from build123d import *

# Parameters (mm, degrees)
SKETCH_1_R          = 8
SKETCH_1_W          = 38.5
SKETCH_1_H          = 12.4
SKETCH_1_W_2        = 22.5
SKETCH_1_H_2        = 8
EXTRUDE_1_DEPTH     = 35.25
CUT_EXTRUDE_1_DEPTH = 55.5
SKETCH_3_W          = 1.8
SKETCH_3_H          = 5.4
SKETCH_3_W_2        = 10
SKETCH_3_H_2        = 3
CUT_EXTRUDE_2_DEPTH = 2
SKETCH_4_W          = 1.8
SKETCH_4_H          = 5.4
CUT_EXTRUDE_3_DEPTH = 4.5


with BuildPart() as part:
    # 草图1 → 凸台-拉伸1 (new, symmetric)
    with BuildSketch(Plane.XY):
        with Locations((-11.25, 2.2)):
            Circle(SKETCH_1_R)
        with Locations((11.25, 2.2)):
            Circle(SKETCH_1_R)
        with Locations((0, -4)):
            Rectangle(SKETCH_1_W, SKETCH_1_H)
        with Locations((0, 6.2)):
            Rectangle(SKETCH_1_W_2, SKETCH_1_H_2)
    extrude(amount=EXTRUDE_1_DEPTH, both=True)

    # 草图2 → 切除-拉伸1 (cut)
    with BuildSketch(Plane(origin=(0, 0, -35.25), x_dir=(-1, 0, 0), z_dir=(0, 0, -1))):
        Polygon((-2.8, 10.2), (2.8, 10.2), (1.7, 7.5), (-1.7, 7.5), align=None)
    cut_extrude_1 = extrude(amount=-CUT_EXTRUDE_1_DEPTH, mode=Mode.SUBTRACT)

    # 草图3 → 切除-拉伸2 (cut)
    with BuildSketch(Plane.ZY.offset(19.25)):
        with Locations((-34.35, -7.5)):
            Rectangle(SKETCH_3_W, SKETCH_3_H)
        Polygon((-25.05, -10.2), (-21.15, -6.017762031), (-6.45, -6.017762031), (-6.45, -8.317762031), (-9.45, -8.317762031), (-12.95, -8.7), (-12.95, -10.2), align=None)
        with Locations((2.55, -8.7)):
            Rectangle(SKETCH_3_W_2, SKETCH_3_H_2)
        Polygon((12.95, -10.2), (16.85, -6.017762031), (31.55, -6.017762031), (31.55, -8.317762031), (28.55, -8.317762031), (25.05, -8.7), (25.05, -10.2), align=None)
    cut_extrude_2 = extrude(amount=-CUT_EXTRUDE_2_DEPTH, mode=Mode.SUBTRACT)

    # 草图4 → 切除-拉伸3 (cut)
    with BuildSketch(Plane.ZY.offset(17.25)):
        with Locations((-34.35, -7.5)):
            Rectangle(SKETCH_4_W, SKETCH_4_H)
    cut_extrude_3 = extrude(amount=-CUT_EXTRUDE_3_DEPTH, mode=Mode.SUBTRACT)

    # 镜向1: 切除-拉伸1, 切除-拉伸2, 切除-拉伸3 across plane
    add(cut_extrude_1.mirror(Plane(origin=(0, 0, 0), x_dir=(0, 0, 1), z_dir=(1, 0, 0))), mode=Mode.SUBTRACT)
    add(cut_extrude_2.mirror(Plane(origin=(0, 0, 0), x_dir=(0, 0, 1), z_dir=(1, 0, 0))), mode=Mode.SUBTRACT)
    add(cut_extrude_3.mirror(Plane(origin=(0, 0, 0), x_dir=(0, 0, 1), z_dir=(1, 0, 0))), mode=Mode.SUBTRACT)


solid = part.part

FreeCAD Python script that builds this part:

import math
import FreeCAD as App
import Part
import Sketcher

V = App.Vector
Q = App.Units.Quantity

doc = App.newDocument("Part")
body = doc.addObject("PartDesign::Body", "Body")

sketch1 = doc.addObject("Sketcher::SketchObject", "Sketch")
body.addObject(sketch1)
sketch1.AttachmentSupport = (doc.XY_Plane, [""])
sketch1.MapMode = "FlatFace"
sketch1.addGeometry([
    Part.ArcOfCircle(Part.Circle(V(11.25, 2.2, 0), V(0, 0, 1), 8), math.radians(0), math.radians(90)),
    Part.LineSegment(V(11.25, 10.2, 0), V(-11.25, 10.2, 0)),
    Part.ArcOfCircle(Part.Circle(V(-11.25, 2.2, 0), V(0, 0, 1), 8), math.radians(90), math.radians(180)),
    Part.LineSegment(V(-19.25, 2.2, 0), V(-19.25, -10.2, 0)),
    Part.LineSegment(V(-19.25, -10.2, 0), V(19.25, -10.2, 0)),
    Part.LineSegment(V(19.25, -10.2, 0), V(19.25, 2.2, 0)),
], False)
sketch1.addConstraint([
    Sketcher.Constraint("Tangent", 0, 2, 1, 1),
    Sketcher.Constraint("Tangent", 1, 2, 2, 1),
    Sketcher.Constraint("Tangent", 2, 2, 3, 1),
    Sketcher.Constraint("Coincident", 3, 2, 4, 1),
    Sketcher.Constraint("Coincident", 4, 2, 5, 1),
    Sketcher.Constraint("Tangent", 5, 2, 0, 1),
    Sketcher.Constraint("Horizontal", 1),
    Sketcher.Constraint("Vertical", 3),
    Sketcher.Constraint("Horizontal", 4),
    Sketcher.Constraint("Vertical", 5),
    Sketcher.Constraint("Equal", 0, 2),
    Sketcher.Constraint("Radius", 0, 8.0),
    Sketcher.Constraint("DistanceX", 1, 2, 1, 1, 22.5),
    Sketcher.Constraint("DistanceY", 3, 2, 3, 1, 12.4),
    Sketcher.Constraint("DistanceY", -1, 1, 0, 3, 2.2),
    Sketcher.Constraint("DistanceX", -1, 1, 0, 3, 11.25),
])
pad1 = doc.addObject("PartDesign::Pad", "Pad")
body.addObject(pad1)
pad1.Profile = sketch1
pad1.Length = 70.5
pad1.Midplane = True

sketch2 = doc.addObject("Sketcher::SketchObject", "Sketch001")
body.addObject(sketch2)
sketch2.AttachmentSupport = (doc.XY_Plane, [""])
sketch2.MapMode = "FlatFace"
sketch2.AttachmentOffset = App.Placement(V(0, 0, -35.25), App.Rotation())
sketch2.addGeometry([
    Part.LineSegment(V(-2.8, 10.2, 0), V(2.8, 10.2, 0)),
    Part.LineSegment(V(2.8, 10.2, 0), V(1.7, 7.5, 0)),
    Part.LineSegment(V(1.7, 7.5, 0), V(-1.7, 7.5, 0)),
    Part.LineSegment(V(-1.7, 7.5, 0), V(-2.8, 10.2, 0)),
], False)
sketch2.addConstraint([
    Sketcher.Constraint("Coincident", 0, 2, 1, 1),
    Sketcher.Constraint("Coincident", 1, 2, 2, 1),
    Sketcher.Constraint("Coincident", 2, 2, 3, 1),
    Sketcher.Constraint("Coincident", 3, 2, 0, 1),
    Sketcher.Constraint("Horizontal", 0),
    Sketcher.Constraint("Horizontal", 2),
    Sketcher.Constraint("Equal", 1, 3),
    Sketcher.Constraint("DistanceX", 0, 1, 0, 2, 5.6),
    Sketcher.Constraint("DistanceX", 2, 2, 2, 1, 3.4),
    Sketcher.Constraint("DistanceX", -1, 1, 0, 2, 2.8),
    Sketcher.Constraint("DistanceY", -1, 1, 0, 2, 10.2),
    Sketcher.Constraint("DistanceY", -1, 1, 1, 2, 7.5),
])
pocket1 = doc.addObject("PartDesign::Pocket", "Pocket")
body.addObject(pocket1)
pocket1.Profile = sketch2
pocket1.Length = 55.5
pocket1.Reversed = True

sketch3 = doc.addObject("Sketcher::SketchObject", "Sketch002")
body.addObject(sketch3)
sketch3.AttachmentSupport = (doc.YZ_Plane, [""])
sketch3.MapMode = "FlatFace"
sketch3.AttachmentOffset = App.Placement(V(0, 0, -19.25), App.Rotation())
sketch3.addGeometry([
    Part.LineSegment(V(-4.8, -35.25, 0), V(-10.2, -35.25, 0)),
    Part.LineSegment(V(-10.2, -35.25, 0), V(-10.2, -33.45, 0)),
    Part.LineSegment(V(-10.2, -33.45, 0), V(-4.8, -33.45, 0)),
    Part.LineSegment(V(-4.8, -33.45, 0), V(-4.8, -35.25, 0)),
    Part.LineSegment(V(-6.017762, -21.15, 0), V(-10.2, -25.05, 0)),
    Part.LineSegment(V(-10.2, -25.05, 0), V(-10.2, -12.95, 0)),
    Part.LineSegment(V(-10.2, -12.95, 0), V(-8.7, -12.95, 0)),
    Part.LineSegment(V(-8.7, -12.95, 0), V(-8.317762, -9.45, 0)),
    Part.LineSegment(V(-8.317762, -9.45, 0), V(-8.317762, -6.45, 0)),
    Part.LineSegment(V(-8.317762, -6.45, 0), V(-6.017762, -6.45, 0)),
    Part.LineSegment(V(-6.017762, -6.45, 0), V(-6.017762, -21.15, 0)),
    Part.LineSegment(V(-7.2, -2.45, 0), V(-10.2, -2.45, 0)),
    Part.LineSegment(V(-10.2, -2.45, 0), V(-10.2, 7.55, 0)),
    Part.LineSegment(V(-10.2, 7.55, 0), V(-7.2, 7.55, 0)),
    Part.LineSegment(V(-7.2, 7.55, 0), V(-7.2, -2.45, 0)),
    Part.LineSegment(V(-6.017762, 16.85, 0), V(-10.2, 12.95, 0)),
    Part.LineSegment(V(-10.2, 12.95, 0), V(-10.2, 25.05, 0)),
    Part.LineSegment(V(-10.2, 25.05, 0), V(-8.7, 25.05, 0)),
    Part.LineSegment(V(-8.7, 25.05, 0), V(-8.317762, 28.55, 0)),
    Part.LineSegment(V(-8.317762, 28.55, 0), V(-8.317762, 31.55, 0)),
    Part.LineSegment(V(-8.317762, 31.55, 0), V(-6.017762, 31.55, 0)),
    Part.LineSegment(V(-6.017762, 31.55, 0), V(-6.017762, 16.85, 0)),
], False)
sketch3.addConstraint([
    Sketcher.Constraint("Coincident", 0, 2, 1, 1),
    Sketcher.Constraint("Coincident", 1, 2, 2, 1),
    Sketcher.Constraint("Coincident", 2, 2, 3, 1),
    Sketcher.Constraint("Coincident", 3, 2, 0, 1),
    Sketcher.Constraint("Coincident", 4, 2, 5, 1),
    Sketcher.Constraint("Coincident", 5, 2, 6, 1),
    Sketcher.Constraint("Coincident", 6, 2, 7, 1),
    Sketcher.Constraint("Coincident", 7, 2, 8, 1),
    Sketcher.Constraint("Coincident", 8, 2, 9, 1),
    Sketcher.Constraint("Coincident", 9, 2, 10, 1),
    Sketcher.Constraint("Coincident", 10, 2, 4, 1),
    Sketcher.Constraint("Coincident", 11, 2, 12, 1),
    Sketcher.Constraint("Coincident", 12, 2, 13, 1),
    Sketcher.Constraint("Coincident", 13, 2, 14, 1),
    Sketcher.Constraint("Coincident", 14, 2, 11, 1),
    Sketcher.Constraint("Coincident", 15, 2, 16, 1),
    Sketcher.Constraint("Coincident", 16, 2, 17, 1),
    Sketcher.Constraint("Coincident", 17, 2, 18, 1),
    Sketcher.Constraint("Coincident", 18, 2, 19, 1),
    Sketcher.Constraint("Coincident", 19, 2, 20, 1),
    Sketcher.Constraint("Coincident", 20, 2, 21, 1),
    Sketcher.Constraint("Coincident", 21, 2, 15, 1),
    Sketcher.Constraint("Horizontal", 0),
    Sketcher.Constraint("Vertical", 1),
    Sketcher.Constraint("Horizontal", 2),
    Sketcher.Constraint("Vertical", 3),
    Sketcher.Constraint("Vertical", 5),
    Sketcher.Constraint("Horizontal", 6),
    Sketcher.Constraint("Vertical", 8),
    Sketcher.Constraint("Horizontal", 9),
    Sketcher.Constraint("Vertical", 10),
    Sketcher.Constraint("Horizontal", 11),
    Sketcher.Constraint("Vertical", 12),
    Sketcher.Constraint("Horizontal", 13),
    Sketcher.Constraint("Vertical", 14),
    Sketcher.Constraint("Vertical", 16),
    Sketcher.Constraint("Horizontal", 17),
    Sketcher.Constraint("Vertical", 19),
    Sketcher.Constraint("Horizontal", 20),
    Sketcher.Constraint("Vertical", 21),
    Sketcher.Constraint("Symmetric", 5, 2, 15, 2, -1),
    Sketcher.Constraint("Parallel", 4, 15),
    Sketcher.Constraint("Parallel", 7, 18),
    Sketcher.Constraint("Vertical", 1, 2, 4, 2),
    Sketcher.Constraint("Vertical", 5, 2, 11, 2),
    Sketcher.Constraint("Vertical", 6, 2, 17, 2),
    Sketcher.Constraint("Vertical", 8, 2, 18, 2),
    Sketcher.Constraint("Vertical", 10, 2, 20, 2),
    Sketcher.Constraint("Equal", 13, 8),
    Sketcher.Constraint("Equal", 5, 16),
    Sketcher.Constraint("Equal", 8, 19),
    Sketcher.Constraint("DistanceX", 11, 2, 11, 1, 3.0),
    Sketcher.Constraint("DistanceY", 12, 1, 12, 2, 10.0),
    Sketcher.Constraint("Angle", 4, Q("-137 deg")),
    Sketcher.Constraint("DistanceX", 0, 2, 0, 1, 5.4),
    Sketcher.Constraint("DistanceX", 6, 1, 6, 2, 1.5),
    Sketcher.Constraint("DistanceX", 9, 1, 9, 2, 2.3),
    Sketcher.Constraint("DistanceY", 1, 1, 1, 2, 1.8),
    Sketcher.Constraint("DistanceY", 5, 1, 5, 2, 12.1),
    Sketcher.Constraint("DistanceY", 10, 2, 10, 1, 14.7),
    Sketcher.Constraint("DistanceY", 1, 2, 7, 2, 24.0),
    Sketcher.Constraint("DistanceY", 8, 2, 11, 2, 4.0),
    Sketcher.Constraint("DistanceY", 13, 2, 18, 2, 21.0),
    Sketcher.Constraint("DistanceX", 0, 2, -1, 1, 10.2),
    Sketcher.Constraint("DistanceY", 1, 2, 4, 2, 8.4),
])
pocket2 = doc.addObject("PartDesign::Pocket", "Pocket001")
body.addObject(pocket2)
pocket2.Profile = sketch3
pocket2.Length = 2
pocket2.Reversed = True

sketch4 = doc.addObject("Sketcher::SketchObject", "Sketch003")
body.addObject(sketch4)
sketch4.AttachmentSupport = (doc.YZ_Plane, [""])
sketch4.MapMode = "FlatFace"
sketch4.AttachmentOffset = App.Placement(V(0, 0, -17.25), App.Rotation())
sketch4.addGeometry([
    Part.LineSegment(V(-4.8, -35.25, 0), V(-10.2, -35.25, 0)),
    Part.LineSegment(V(-10.2, -35.25, 0), V(-10.2, -33.45, 0)),
    Part.LineSegment(V(-10.2, -33.45, 0), V(-4.8, -33.45, 0)),
    Part.LineSegment(V(-4.8, -33.45, 0), V(-4.8, -35.25, 0)),
], False)
sketch4.addConstraint([
    Sketcher.Constraint("Coincident", 0, 2, 1, 1),
    Sketcher.Constraint("Coincident", 1, 2, 2, 1),
    Sketcher.Constraint("Coincident", 2, 2, 3, 1),
    Sketcher.Constraint("Coincident", 3, 2, 0, 1),
    Sketcher.Constraint("Horizontal", 0),
    Sketcher.Constraint("Vertical", 1),
    Sketcher.Constraint("Horizontal", 2),
    Sketcher.Constraint("Vertical", 3),
    Sketcher.Constraint("DistanceX", 0, 2, 0, 1, 5.4),
    Sketcher.Constraint("DistanceY", 1, 1, 1, 2, 1.8),
    Sketcher.Constraint("DistanceX", 0, 2, -1, 1, 10.2),
    Sketcher.Constraint("DistanceY", 0, 2, -1, 1, 35.25),
])
pocket3 = doc.addObject("PartDesign::Pocket", "Pocket002")
body.addObject(pocket3)
pocket3.Profile = sketch4
pocket3.Length = 4.5
pocket3.Reversed = True
doc.recompute()

mirrored = doc.addObject("PartDesign::Mirrored", "Mirrored")
body.addObject(mirrored)
mirrored.Originals = [pocket1, pocket2, pocket3]
mirrored.MirrorPlane = (doc.YZ_Plane, [""])
body.Tip = mirrored

doc.recompute()
